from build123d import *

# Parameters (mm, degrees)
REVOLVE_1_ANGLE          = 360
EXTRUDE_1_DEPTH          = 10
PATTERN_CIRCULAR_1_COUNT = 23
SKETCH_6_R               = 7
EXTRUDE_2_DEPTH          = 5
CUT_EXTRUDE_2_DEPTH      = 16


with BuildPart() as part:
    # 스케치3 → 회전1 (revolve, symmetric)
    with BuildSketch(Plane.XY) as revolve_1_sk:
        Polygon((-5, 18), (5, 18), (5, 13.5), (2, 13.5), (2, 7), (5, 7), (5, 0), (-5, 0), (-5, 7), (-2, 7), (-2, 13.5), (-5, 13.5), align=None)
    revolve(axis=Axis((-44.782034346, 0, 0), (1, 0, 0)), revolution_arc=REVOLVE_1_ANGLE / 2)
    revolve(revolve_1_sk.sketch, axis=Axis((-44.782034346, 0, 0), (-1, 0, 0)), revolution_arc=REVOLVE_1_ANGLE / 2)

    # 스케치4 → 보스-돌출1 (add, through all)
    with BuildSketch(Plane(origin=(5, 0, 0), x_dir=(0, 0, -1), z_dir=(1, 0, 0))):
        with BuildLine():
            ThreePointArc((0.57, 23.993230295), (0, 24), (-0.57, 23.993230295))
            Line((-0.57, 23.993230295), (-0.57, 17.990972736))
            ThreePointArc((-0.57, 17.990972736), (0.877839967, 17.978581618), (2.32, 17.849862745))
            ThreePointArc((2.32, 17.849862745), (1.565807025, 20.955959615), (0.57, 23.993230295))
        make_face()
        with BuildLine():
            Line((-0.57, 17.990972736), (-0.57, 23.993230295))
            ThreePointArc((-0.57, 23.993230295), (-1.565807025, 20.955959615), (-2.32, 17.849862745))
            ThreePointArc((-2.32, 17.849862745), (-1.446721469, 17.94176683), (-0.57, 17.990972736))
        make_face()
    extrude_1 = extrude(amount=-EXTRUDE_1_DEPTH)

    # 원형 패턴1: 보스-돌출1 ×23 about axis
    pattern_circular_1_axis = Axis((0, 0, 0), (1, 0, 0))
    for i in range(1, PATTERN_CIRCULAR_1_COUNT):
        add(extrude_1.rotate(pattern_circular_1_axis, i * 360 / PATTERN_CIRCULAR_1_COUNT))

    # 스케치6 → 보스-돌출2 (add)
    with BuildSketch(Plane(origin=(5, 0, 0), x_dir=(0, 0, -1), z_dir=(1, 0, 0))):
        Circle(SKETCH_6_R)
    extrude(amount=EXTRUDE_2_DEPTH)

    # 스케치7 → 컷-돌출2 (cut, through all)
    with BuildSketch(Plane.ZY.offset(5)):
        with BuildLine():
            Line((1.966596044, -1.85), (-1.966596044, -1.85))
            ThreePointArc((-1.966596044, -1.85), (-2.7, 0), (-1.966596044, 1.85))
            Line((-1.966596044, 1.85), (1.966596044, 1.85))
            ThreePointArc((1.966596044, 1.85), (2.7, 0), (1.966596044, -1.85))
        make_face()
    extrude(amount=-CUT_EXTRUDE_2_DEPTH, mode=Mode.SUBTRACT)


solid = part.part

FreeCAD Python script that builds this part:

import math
import FreeCAD as App
import Part
import Sketcher

V = App.Vector
Q = App.Units.Quantity

doc = App.newDocument("Part")
body = doc.addObject("PartDesign::Body", "Body")

# Sketch on XY plane
sketch1 = doc.addObject("Sketcher::SketchObject", "Sketch")
body.addObject(sketch1)
sketch1.AttachmentSupport = (doc.XY_Plane, [""])
sketch1.MapMode = "FlatFace"
sketch1.addGeometry(Part.LineSegment(V(5, 18, 0), V(-5, 18, 0)), False)
sketch1.addGeometry(Part.LineSegment(V(-5, 18, 0), V(-5, 13.5, 0)), False)
sketch1.addGeometry(Part.LineSegment(V(-5, 13.5, 0), V(-2, 13.5, 0)), False)
sketch1.addGeometry(Part.LineSegment(V(-2, 13.5, 0), V(-2, 7, 0)), False)
sketch1.addGeometry(Part.LineSegment(V(-2, 7, 0), V(-5, 7, 0)), False)
sketch1.addGeometry(Part.LineSegment(V(-5, 7, 0), V(-5, 0, 0)), False)
sketch1.addGeometry(Part.LineSegment(V(-5, 0, 0), V(5, 0, 0)), False)
sketch1.addGeometry(Part.LineSegment(V(5, 0, 0), V(5, 7, 0)), False)
sketch1.addGeometry(Part.LineSegment(V(5, 7, 0), V(2, 7, 0)), False)
sketch1.addGeometry(Part.LineSegment(V(2, 7, 0), V(2, 13.5, 0)), False)
sketch1.addGeometry(Part.LineSegment(V(2, 13.5, 0), V(5, 13.5, 0)), False)
sketch1.addGeometry(Part.LineSegment(V(5, 13.5, 0), V(5, 18, 0)), False)
sketch1.addConstraint(Sketcher.Constraint("Coincident", 0, 2, 1, 1))
sketch1.addConstraint(Sketcher.Constraint("Coincident", 1, 2, 2, 1))
sketch1.addConstraint(Sketcher.Constraint("Coincident", 2, 2, 3, 1))
sketch1.addConstraint(Sketcher.Constraint("Coincident", 3, 2, 4, 1))
sketch1.addConstraint(Sketcher.Constraint("Coincident", 4, 2, 5, 1))
sketch1.addConstraint(Sketcher.Constraint("Coincident", 5, 2, 6, 1))
sketch1.addConstraint(Sketcher.Constraint("Coincident", 6, 2, 7, 1))
sketch1.addConstraint(Sketcher.Constraint("Coincident", 7, 2, 8, 1))
sketch1.addConstraint(Sketcher.Constraint("Coincident", 8, 2, 9, 1))
sketch1.addConstraint(Sketcher.Constraint("Coincident", 9, 2, 10, 1))
sketch1.addConstraint(Sketcher.Constraint("Coincident", 10, 2, 11, 1))
sketch1.addConstraint(Sketcher.Constraint("Coincident", 11, 2, 0, 1))
sketch1.addConstraint(Sketcher.Constraint("Horizontal", 0))
sketch1.addConstraint(Sketcher.Constraint("Vertical", 1))
sketch1.addConstraint(Sketcher.Constraint("Horizontal", 2))
sketch1.addConstraint(Sketcher.Constraint("Vertical", 3))
sketch1.addConstraint(Sketcher.Constraint("Horizontal", 4))
sketch1.addConstraint(Sketcher.Constraint("Vertical", 5))
sketch1.addConstraint(Sketcher.Constraint("Horizontal", 6))
sketch1.addConstraint(Sketcher.Constraint("Vertical", 7))
sketch1.addConstraint(Sketcher.Constraint("Horizontal", 8))
sketch1.addConstraint(Sketcher.Constraint("Vertical", 9))
sketch1.addConstraint(Sketcher.Constraint("Horizontal", 10))
sketch1.addConstraint(Sketcher.Constraint("Vertical", 11))
sketch1.addConstraint(Sketcher.Constraint("Symmetric", 5, 2, 6, 2, -1, 1))
sketch1.addConstraint(Sketcher.Constraint("Symmetric", 3, 2, 8, 2, -2))
sketch1.addConstraint(Sketcher.Constraint("Symmetric", 1, 2, 10, 2, -2))
sketch1.addConstraint(Sketcher.Constraint("Vertical", 1, 2, 4, 2))
sketch1.addConstraint(Sketcher.Constraint("DistanceX", 0, 2, 0, 1, Q("10 mm")))
sketch1.addConstraint(Sketcher.Constraint("DistanceX", 2, 1, 2, 2, Q("3 mm")))
sketch1.addConstraint(Sketcher.Constraint("DistanceY", 5, 2, 5, 1, Q("7 mm")))
sketch1.addConstraint(Sketcher.Constraint("DistanceY", 1, 2, 1, 1, Q("4.5 mm")))
sketch1.addConstraint(Sketcher.Constraint("DistanceY", 3, 2, 3, 1, Q("6.5 mm")))
revolution = doc.addObject("PartDesign::Revolution", "Revolution")
body.addObject(revolution)
revolution.Profile = sketch1
revolution.ReferenceAxis = (sketch1, ["H_Axis"])
revolution.Angle = 180

# Sketch on XY plane
sketch2 = doc.addObject("Sketcher::SketchObject", "Sketch001")
body.addObject(sketch2)
sketch2.AttachmentSupport = (doc.XY_Plane, [""])
sketch2.MapMode = "FlatFace"
sketch2.addGeometry(Part.LineSegment(V(5, 18, 0), V(-5, 18, 0)), False)
sketch2.addGeometry(Part.LineSegment(V(-5, 18, 0), V(-5, 13.5, 0)), False)
sketch2.addGeometry(Part.LineSegment(V(-5, 13.5, 0), V(-2, 13.5, 0)), False)
sketch2.addGeometry(Part.LineSegment(V(-2, 13.5, 0), V(-2, 7, 0)), False)
sketch2.addGeometry(Part.LineSegment(V(-2, 7, 0), V(-5, 7, 0)), False)
sketch2.addGeometry(Part.LineSegment(V(-5, 7, 0), V(-5, 0, 0)), False)
sketch2.addGeometry(Part.LineSegment(V(-5, 0, 0), V(5, 0, 0)), False)
sketch2.addGeometry(Part.LineSegment(V(5, 0, 0), V(5, 7, 0)), False)
sketch2.addGeometry(Part.LineSegment(V(5, 7, 0), V(2, 7, 0)), False)
sketch2.addGeometry(Part.LineSegment(V(2, 7, 0), V(2, 13.5, 0)), False)
sketch2.addGeometry(Part.LineSegment(V(2, 13.5, 0), V(5, 13.5, 0)), False)
sketch2.addGeometry(Part.LineSegment(V(5, 13.5, 0), V(5, 18, 0)), False)
sketch2.addConstraint(Sketcher.Constraint("Coincident", 0, 2, 1, 1))
sketch2.addConstraint(Sketcher.Constraint("Coincident", 1, 2, 2, 1))
sketch2.addConstraint(Sketcher.Constraint("Coincident", 2, 2, 3, 1))
sketch2.addConstraint(Sketcher.Constraint("Coincident", 3, 2, 4, 1))
sketch2.addConstraint(Sketcher.Constraint("Coincident", 4, 2, 5, 1))
sketch2.addConstraint(Sketcher.Constraint("Coincident", 5, 2, 6, 1))
sketch2.addConstraint(Sketcher.Constraint("Coincident", 6, 2, 7, 1))
sketch2.addConstraint(Sketcher.Constraint("Coincident", 7, 2, 8, 1))
sketch2.addConstraint(Sketcher.Constraint("Coincident", 8, 2, 9, 1))
sketch2.addConstraint(Sketcher.Constraint("Coincident", 9, 2, 10, 1))
sketch2.addConstraint(Sketcher.Constraint("Coincident", 10, 2, 11, 1))
sketch2.addConstraint(Sketcher.Constraint("Coincident", 11, 2, 0, 1))
sketch2.addConstraint(Sketcher.Constraint("Horizontal", 0))
sketch2.addConstraint(Sketcher.Constraint("Vertical", 1))
sketch2.addConstraint(Sketcher.Constraint("Horizontal", 2))
sketch2.addConstraint(Sketcher.Constraint("Vertical", 3))
sketch2.addConstraint(Sketcher.Constraint("Horizontal", 4))
sketch2.addConstraint(Sketcher.Constraint("Vertical", 5))
sketch2.addConstraint(Sketcher.Constraint("Horizontal", 6))
sketch2.addConstraint(Sketcher.Constraint("Vertical", 7))
sketch2.addConstraint(Sketcher.Constraint("Horizontal", 8))
sketch2.addConstraint(Sketcher.Constraint("Vertical", 9))
sketch2.addConstraint(Sketcher.Constraint("Horizontal", 10))
sketch2.addConstraint(Sketcher.Constraint("Vertical", 11))
sketch2.addConstraint(Sketcher.Constraint("Symmetric", 5, 2, 6, 2, -1, 1))
sketch2.addConstraint(Sketcher.Constraint("Symmetric", 3, 2, 8, 2, -2))
sketch2.addConstraint(Sketcher.Constraint("Symmetric", 1, 2, 10, 2, -2))
sketch2.addConstraint(Sketcher.Constraint("Vertical", 1, 2, 4, 2))
sketch2.addConstraint(Sketcher.Constraint("DistanceX", 0, 2, 0, 1, Q("10 mm")))
sketch2.addConstraint(Sketcher.Constraint("DistanceX", 2, 1, 2, 2, Q("3 mm")))
sketch2.addConstraint(Sketcher.Constraint("DistanceY", 5, 2, 5, 1, Q("7 mm")))
sketch2.addConstraint(Sketcher.Constraint("DistanceY", 1, 2, 1, 1, Q("4.5 mm")))
sketch2.addConstraint(Sketcher.Constraint("DistanceY", 3, 2, 3, 1, Q("6.5 mm")))
revolution2 = doc.addObject("PartDesign::Revolution", "Revolution001")
body.addObject(revolution2)
revolution2.Profile = sketch2
revolution2.ReferenceAxis = (sketch2, ["H_Axis"])
revolution2.Angle = 180
revolution2.Reversed = True

# Sketch on YZ plane
sketch3 = doc.addObject("Sketcher::SketchObject", "Sketch002")
body.addObject(sketch3)
sketch3.AttachmentSupport = (doc.YZ_Plane, [""])
sketch3.MapMode = "FlatFace"
sketch3.AttachmentOffset = App.Placement(V(0, 0, 5), App.Rotation())
sketch3.addGeometry(Part.ArcOfCircle(Part.Circle(V(0, 0, 0), V(0, 0, 1), 24), math.radians(-1.36), math.radians(1.36)), False)
sketch3.addGeometry(Part.ArcOfCircle(Part.Circle(V(9.8, -37.5, 0), V(0, 0, 1), 40.7), math.radians(69.6), math.radians(78.6)), False)
sketch3.addGeometry(Part.ArcOfCircle(Part.Circle(V(0, 0, 0), V(0, 0, 1), 18), math.radians(1.81), math.radians(7.41)), False)
sketch3.addGeometry(Part.ArcOfCircle(Part.Circle(V(0, 0, 0), V(0, 0, 1), 18), math.radians(-7.41), math.radians(1.81)), False)
sketch3.addGeometry(Part.ArcOfCircle(Part.Circle(V(9.8, 37.5, 0), V(0, 0, 1), 40.7), math.radians(-78.6), math.radians(-69.6)), False)
sketch3.addConstraint(Sketcher.Constraint("Coincident", 0, 2, 1, 1))
sketch3.addConstraint(Sketcher.Constraint("Coincident", 1, 2, 2, 2))
sketch3.addConstraint(Sketcher.Constraint("Tangent", 2, 1, 3, 2))
sketch3.addConstraint(Sketcher.Constraint("Coincident", 3, 1, 4, 1))
sketch3.addConstraint(Sketcher.Constraint("Coincident", 4, 2, 0, 1))
sketch3.addConstraint(Sketcher.Constraint("Coincident", 0, 3, -1, 1))
sketch3.addConstraint(Sketcher.Constraint("Coincident", 2, 3, -1, 1))
sketch3.addConstraint(Sketcher.Constraint("Equal", 2, 3))
sketch3.addConstraint(Sketcher.Constraint("Equal", 1, 4))
sketch3.addConstraint(Sketcher.Constraint("Symmetric", 1, 3, 4, 3, -1))
sketch3.addConstraint(Sketcher.Constraint("Horizontal", 0, 2, 2, 1))
sketch3.addConstraint(Sketcher.Constraint("Radius", 0, Q("23.999999 mm")))
sketch3.addConstraint(Sketcher.Constraint("Radius", 2, Q("18 mm")))
sketch3.addConstraint(Sketcher.Constraint("DistanceY", -1, 1, 0, 2, Q("0.57 mm")))
sketch3.addConstraint(Sketcher.Constraint("DistanceY", -1, 1, 1, 2, Q("2.32 mm")))
sketch3.addConstraint(Sketcher.Constraint("Radius", 1, Q("40.667183 mm")))
pad1 = doc.addObject("PartDesign::Pad", "Pad")
body.addObject(pad1)
pad1.Profile = sketch3
pad1.Length = 10
pad1.Reversed = True
doc.recompute()

polarpattern = doc.addObject("PartDesign::PolarPattern", "PolarPattern")
body.addObject(polarpattern)
polarpattern.Originals = [pad1]
polarpattern.Axis = (doc.X_Axis, [""])
polarpattern.Angle = 360
polarpattern.Occurrences = 23
body.Tip = polarpattern

# Sketch on YZ plane
sketch4 = doc.addObject("Sketcher::SketchObject", "Sketch003")
body.addObject(sketch4)
sketch4.AttachmentSupport = (doc.YZ_Plane, [""])
sketch4.MapMode = "FlatFace"
sketch4.AttachmentOffset = App.Placement(V(0, 0, 5), App.Rotation())
sketch4.addGeometry(Part.Circle(V(0, 0, 0), V(0, 0, 1), 7), False)
sketch4.addConstraint(Sketcher.Constraint("Coincident", 0, 3, -1, 1))
sketch4.addConstraint(Sketcher.Constraint("Diameter", 0, Q("14 mm")))
pad2 = doc.addObject("PartDesign::Pad", "Pad001")
body.addObject(pad2)
pad2.Profile = sketch4
pad2.Length = 5

# Sketch on YZ plane
sketch5 = doc.addObject("Sketcher::SketchObject", "Sketch004")
body.addObject(sketch5)
sketch5.AttachmentSupport = (doc.YZ_Plane, [""])
sketch5.MapMode = "FlatFace"
sketch5.AttachmentOffset = App.Placement(V(0, 0, -5), App.Rotation())
sketch5.addGeometry(Part.LineSegment(V(-1.9, -2, 0), V(-1.9, 2, 0)), False)
sketch5.addGeometry(Part.ArcOfCircle(Part.Circle(V(0, 0, 0), V(0, 0, 1), 2.7), math.radians(47), math.radians(133)), False)
sketch5.addGeometry(Part.LineSegment(V(1.9, 2, 0), V(1.9, -2, 0)), False)
sketch5.addGeometry(Part.ArcOfCircle(Part.Circle(V(0, 0, 0), V(0, 0, 1), 2.7), math.radians(-133), math.radians(-47)), False)
sketch5.addConstraint(Sketcher.Constraint("Coincident", 0, 2, 1, 2))
sketch5.addConstraint(Sketcher.Constraint("Coincident", 1, 1, 2, 1))
sketch5.addConstraint(Sketcher.Constraint("Coincident", 2, 2, 3, 2))
sketch5.addConstraint(Sketcher.Constraint("Coincident", 3, 1, 0, 1))
sketch5.addConstraint(Sketcher.Constraint("Vertical", 0))
sketch5.addConstraint(Sketcher.Constraint("Vertical", 2))
sketch5.addConstraint(Sketcher.Constraint("Coincident", 1, 3, -1, 1))
sketch5.addConstraint(Sketcher.Constraint("Coincident", 3, 3, -1, 1))
sketch5.addConstraint(Sketcher.Constraint("Equal", 1, 3))
sketch5.addConstraint(Sketcher.Constraint("Horizontal", 0, 2, 1, 1))
sketch5.addConstraint(Sketcher.Constraint("Radius", 1, Q("2.7 mm")))
sketch5.addConstraint(Sketcher.Constraint("DistanceX", 0, 2, 1, 1, Q("3.7 mm")))
pocket1 = doc.addObject("PartDesign::Pocket", "Pocket")
body.addObject(pocket1)
pocket1.Profile = sketch5
pocket1.Type = "ThroughAll"
pocket1.Reversed = True

doc.recompute()
